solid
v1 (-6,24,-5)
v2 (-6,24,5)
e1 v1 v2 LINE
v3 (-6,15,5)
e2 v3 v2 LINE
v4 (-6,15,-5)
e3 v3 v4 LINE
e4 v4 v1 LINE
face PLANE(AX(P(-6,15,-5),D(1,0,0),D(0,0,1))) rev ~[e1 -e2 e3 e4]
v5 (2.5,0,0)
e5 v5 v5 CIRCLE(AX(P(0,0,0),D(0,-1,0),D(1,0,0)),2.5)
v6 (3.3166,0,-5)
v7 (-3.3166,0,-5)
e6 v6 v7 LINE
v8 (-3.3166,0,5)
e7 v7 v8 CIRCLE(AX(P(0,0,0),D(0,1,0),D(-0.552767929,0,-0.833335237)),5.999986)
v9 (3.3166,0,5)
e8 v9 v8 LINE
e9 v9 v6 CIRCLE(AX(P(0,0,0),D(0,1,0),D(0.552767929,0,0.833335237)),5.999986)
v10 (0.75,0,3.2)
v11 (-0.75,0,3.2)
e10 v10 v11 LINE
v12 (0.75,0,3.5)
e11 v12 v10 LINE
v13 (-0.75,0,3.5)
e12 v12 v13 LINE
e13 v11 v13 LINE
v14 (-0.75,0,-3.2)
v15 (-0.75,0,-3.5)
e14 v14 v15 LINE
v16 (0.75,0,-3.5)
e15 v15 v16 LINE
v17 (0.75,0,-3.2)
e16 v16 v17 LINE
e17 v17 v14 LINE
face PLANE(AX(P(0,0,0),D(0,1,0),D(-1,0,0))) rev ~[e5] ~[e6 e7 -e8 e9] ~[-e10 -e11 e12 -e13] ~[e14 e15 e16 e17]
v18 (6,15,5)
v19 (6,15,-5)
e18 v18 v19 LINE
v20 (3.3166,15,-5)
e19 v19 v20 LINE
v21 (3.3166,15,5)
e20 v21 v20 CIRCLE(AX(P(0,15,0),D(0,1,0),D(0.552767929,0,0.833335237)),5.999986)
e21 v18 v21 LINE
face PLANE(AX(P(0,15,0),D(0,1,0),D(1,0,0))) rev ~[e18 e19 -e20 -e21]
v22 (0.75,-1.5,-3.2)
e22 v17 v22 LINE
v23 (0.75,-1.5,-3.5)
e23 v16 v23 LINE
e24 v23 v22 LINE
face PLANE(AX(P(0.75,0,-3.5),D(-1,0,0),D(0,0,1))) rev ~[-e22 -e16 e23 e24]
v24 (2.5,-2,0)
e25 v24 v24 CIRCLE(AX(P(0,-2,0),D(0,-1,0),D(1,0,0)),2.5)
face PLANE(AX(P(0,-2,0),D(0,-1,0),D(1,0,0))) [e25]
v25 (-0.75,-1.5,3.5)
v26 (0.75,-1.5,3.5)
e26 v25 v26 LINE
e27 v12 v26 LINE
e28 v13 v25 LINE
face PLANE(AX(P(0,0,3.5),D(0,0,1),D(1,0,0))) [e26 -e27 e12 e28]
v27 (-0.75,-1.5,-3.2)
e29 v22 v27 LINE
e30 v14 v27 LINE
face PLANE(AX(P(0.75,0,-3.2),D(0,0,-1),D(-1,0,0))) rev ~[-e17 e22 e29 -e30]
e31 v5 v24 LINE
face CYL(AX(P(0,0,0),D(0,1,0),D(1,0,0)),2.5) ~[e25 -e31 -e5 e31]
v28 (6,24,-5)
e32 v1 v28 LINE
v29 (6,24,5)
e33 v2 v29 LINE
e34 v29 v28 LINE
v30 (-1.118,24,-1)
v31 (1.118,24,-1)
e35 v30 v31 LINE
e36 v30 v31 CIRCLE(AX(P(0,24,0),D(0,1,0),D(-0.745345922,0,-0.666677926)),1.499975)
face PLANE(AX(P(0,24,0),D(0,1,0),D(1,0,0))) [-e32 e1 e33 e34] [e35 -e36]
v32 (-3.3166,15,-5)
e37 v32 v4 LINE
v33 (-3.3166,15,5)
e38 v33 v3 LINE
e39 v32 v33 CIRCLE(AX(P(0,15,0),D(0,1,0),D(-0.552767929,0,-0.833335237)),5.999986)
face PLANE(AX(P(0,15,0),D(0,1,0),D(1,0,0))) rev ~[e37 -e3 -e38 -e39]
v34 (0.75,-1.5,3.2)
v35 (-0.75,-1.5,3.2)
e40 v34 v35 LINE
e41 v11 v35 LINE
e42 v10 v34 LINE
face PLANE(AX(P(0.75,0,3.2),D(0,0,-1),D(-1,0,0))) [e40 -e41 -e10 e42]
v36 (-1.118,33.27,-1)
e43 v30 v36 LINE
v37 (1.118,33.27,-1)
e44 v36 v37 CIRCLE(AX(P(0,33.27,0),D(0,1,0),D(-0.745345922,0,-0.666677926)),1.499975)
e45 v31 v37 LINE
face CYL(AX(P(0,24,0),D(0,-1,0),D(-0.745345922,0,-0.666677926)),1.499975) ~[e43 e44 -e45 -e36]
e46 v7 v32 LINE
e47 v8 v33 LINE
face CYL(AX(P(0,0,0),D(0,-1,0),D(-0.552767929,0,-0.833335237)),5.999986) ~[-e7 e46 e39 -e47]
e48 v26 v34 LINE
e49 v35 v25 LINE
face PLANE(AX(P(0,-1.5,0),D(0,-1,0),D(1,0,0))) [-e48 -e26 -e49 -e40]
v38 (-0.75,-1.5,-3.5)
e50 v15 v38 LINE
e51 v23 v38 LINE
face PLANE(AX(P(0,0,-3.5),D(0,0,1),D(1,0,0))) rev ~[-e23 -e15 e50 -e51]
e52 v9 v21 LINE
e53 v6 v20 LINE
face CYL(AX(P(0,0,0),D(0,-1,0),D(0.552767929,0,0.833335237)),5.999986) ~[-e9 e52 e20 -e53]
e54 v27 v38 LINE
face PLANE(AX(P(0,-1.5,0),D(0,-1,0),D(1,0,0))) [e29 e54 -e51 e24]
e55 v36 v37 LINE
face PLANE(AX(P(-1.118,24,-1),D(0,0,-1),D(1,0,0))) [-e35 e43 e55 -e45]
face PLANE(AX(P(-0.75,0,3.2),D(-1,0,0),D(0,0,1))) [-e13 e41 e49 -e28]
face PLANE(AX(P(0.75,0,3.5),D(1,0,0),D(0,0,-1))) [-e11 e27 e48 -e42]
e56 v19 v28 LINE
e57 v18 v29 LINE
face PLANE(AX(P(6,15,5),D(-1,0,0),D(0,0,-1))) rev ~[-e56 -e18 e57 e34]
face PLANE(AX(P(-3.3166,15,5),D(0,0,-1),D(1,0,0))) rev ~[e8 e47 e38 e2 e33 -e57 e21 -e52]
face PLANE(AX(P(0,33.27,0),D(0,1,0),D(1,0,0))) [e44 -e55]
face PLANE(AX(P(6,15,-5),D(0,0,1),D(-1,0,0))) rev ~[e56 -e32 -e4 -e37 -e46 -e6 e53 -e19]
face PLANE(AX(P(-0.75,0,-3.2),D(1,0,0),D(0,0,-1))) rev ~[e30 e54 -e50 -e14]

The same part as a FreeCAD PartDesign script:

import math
import FreeCAD as App
import Part
import Sketcher
from FreeCAD import Vector
Q = App.Units.Quantity


def add_polygon(sketch, points):
    """Adds a closed chain of lines whose ends are joined by coincident constraints."""
    first, n = sketch.GeometryCount, len(points)
    for a, b in zip(points, points[1:] + points[:1]):
        sketch.addGeometry(Part.LineSegment(App.Vector(*a, 0), App.Vector(*b, 0)), False)
    for i in range(n):
        sketch.addConstraint(Sketcher.Constraint("Coincident", first + i, 2, first + (i + 1) % n, 1))

doc = App.newDocument("Part")
body = doc.addObject("PartDesign::Body", "Body")

# Sketch on XZ plane
sketch1 = doc.addObject("Sketcher::SketchObject", "Sketch")
body.addObject(sketch1)
sketch1.AttachmentSupport = (doc.XZ_Plane, [""])
sketch1.MapMode = "FlatFace"
sketch1.addGeometry([
    Part.LineSegment(Vector(-3, 5, 0), Vector(3, 5, 0)),
    Part.ArcOfCircle(Part.Circle(Vector(0, 0, 0), Vector(0, 0, 1), 6), math.radians(-56), math.radians(56)),
    Part.LineSegment(Vector(3, -5, 0), Vector(-3, -5, 0)),
    Part.ArcOfCircle(Part.Circle(Vector(0, 0, 0), Vector(0, 0, 1), 6), math.radians(124), math.radians(236)),
], False)
sketch1.addConstraint([
    Sketcher.Constraint("Coincident", 0, 2, 1, 2),
    Sketcher.Constraint("Coincident", 1, 1, 2, 1),
    Sketcher.Constraint("Coincident", 2, 2, 3, 2),
    Sketcher.Constraint("Coincident", 3, 1, 0, 1),
    Sketcher.Constraint("Horizontal", 0),
    Sketcher.Constraint("Horizontal", 2),
    Sketcher.Constraint("Coincident", 1, 3, -1, 1),
    Sketcher.Constraint("Coincident", 3, 3, -1, 1),
    Sketcher.Constraint("Equal", 1, 3),
    Sketcher.Constraint("Vertical", 0, 2, 1, 1),
    Sketcher.Constraint("DistanceY", -1, 1, 0, 2, Q("5 mm")),
    Sketcher.Constraint("Radius", 1, Q("6 mm")),
])
pad1 = doc.addObject("PartDesign::Pad", "Pad")
body.addObject(pad1)
pad1.Profile = sketch1
pad1.Length = 15
pad1.Reversed = True

# Sketch on XZ plane
sketch2 = doc.addObject("Sketcher::SketchObject", "Sketch001")
body.addObject(sketch2)
sketch2.AttachmentSupport = (doc.XZ_Plane, [""])
sketch2.MapMode = "FlatFace"
sketch2.AttachmentOffset = App.Placement(Vector(0, 0, -15), App.Rotation())
add_polygon(sketch2, [(6, -5), (-6, -5), (-6, 5), (6, 5)])  # lines 0-3
sketch2.addConstraint([
    Sketcher.Constraint("Horizontal", 0),
    Sketcher.Constraint("Vertical", 1),
    Sketcher.Constraint("Horizontal", 2),
    Sketcher.Constraint("Vertical", 3),
    Sketcher.Constraint("Symmetric", 0, 2, 2, 2, -1, 1),
    Sketcher.Constraint("DistanceX", 0, 2, 0, 1, Q("12 mm")),
    Sketcher.Constraint("DistanceY", 1, 1, 1, 2, Q("10 mm")),
])
pad2 = doc.addObject("PartDesign::Pad", "Pad001")
body.addObject(pad2)
pad2.Profile = sketch2
pad2.Length = 9
pad2.Reversed = True

# Sketch on XZ plane
sketch3 = doc.addObject("Sketcher::SketchObject", "Sketch002")
body.addObject(sketch3)
sketch3.AttachmentSupport = (doc.XZ_Plane, [""])
sketch3.MapMode = "FlatFace"
sketch3.AttachmentOffset = App.Placement(Vector(0, 0, -24), App.Rotation())
sketch3.addGeometry([
    Part.LineSegment(Vector(1.1, -1, 0), Vector(-1.1, -1, 0)),
    Part.ArcOfCircle(Part.Circle(Vector(0, 0, 0), Vector(0, 0, 1), 1.5), math.radians(-42), math.radians(222)),
], False)
sketch3.addConstraint([
    Sketcher.Constraint("Coincident", 0, 1, 1, 1),
    Sketcher.Constraint("Coincident", 1, 2, 0, 2),
    Sketcher.Constraint("Horizontal", 0),
    Sketcher.Constraint("Coincident", 1, 3, -1, 1),
    Sketcher.Constraint("Radius", 1, Q("1.5 mm")),
    Sketcher.Constraint("DistanceY", 0, 1, -1, 1, Q("1 mm")),
])
pad3 = doc.addObject("PartDesign::Pad", "Pad002")
body.addObject(pad3)
pad3.Profile = sketch3
pad3.Length = 9.27
pad3.Reversed = True

# Sketch on XZ plane
sketch4 = doc.addObject("Sketcher::SketchObject", "Sketch003")
body.addObject(sketch4)
sketch4.AttachmentSupport = (doc.XZ_Plane, [""])
sketch4.MapMode = "FlatFace"
add_polygon(sketch4, [(0.75, 3.5), (-0.75, 3.5), (-0.75, 3.2), (0.75, 3.2)])  # lines 0-3
add_polygon(sketch4, [(0.75, -3.2), (-0.75, -3.2), (-0.75, -3.5), (0.75, -3.5)])  # lines 4-7
sketch4.addConstraint([
    Sketcher.Constraint("Horizontal", 0),
    Sketcher.Constraint("Vertical", 1),
    Sketcher.Constraint("Horizontal", 2),
    Sketcher.Constraint("Vertical", 3),
    Sketcher.Constraint("Horizontal", 4),
    Sketcher.Constraint("Vertical", 5),
    Sketcher.Constraint("Horizontal", 6),
    Sketcher.Constraint("Vertical", 7),
    Sketcher.Constraint("Symmetric", 2, 2, 4, 2, -1, 1),
    Sketcher.Constraint("Symmetric", 0, 2, 6, 2, -1, 1),
    Sketcher.Constraint("Vertical", 1, 2, 4, 2),
    Sketcher.Constraint("DistanceY", 1, 2, 1, 1, Q("0.3 mm")),
    Sketcher.Constraint("DistanceY", -1, 1, 0, 2, Q("3.5 mm")),
    Sketcher.Constraint("DistanceX", 0, 2, -1, 1, Q("0.75 mm")),
])
pad4 = doc.addObject("PartDesign::Pad", "Pad003")
body.addObject(pad4)
pad4.Profile = sketch4
pad4.Length = 1.5

# Sketch on XZ plane
sketch5 = doc.addObject("Sketcher::SketchObject", "Sketch004")
body.addObject(sketch5)
sketch5.AttachmentSupport = (doc.XZ_Plane, [""])
sketch5.MapMode = "FlatFace"
sketch5.addGeometry(Part.Circle(Vector(0, 0, 0), Vector(0, 0, 1), 2.5), False)
sketch5.addConstraint([
    Sketcher.Constraint("Coincident", 0, 3, -1, 1),
    Sketcher.Constraint("Diameter", 0, Q("5 mm")),
])
pad5 = doc.addObject("PartDesign::Pad", "Pad004")
body.addObject(pad5)
pad5.Profile = sketch5
pad5.Length = 2

doc.recompute()
